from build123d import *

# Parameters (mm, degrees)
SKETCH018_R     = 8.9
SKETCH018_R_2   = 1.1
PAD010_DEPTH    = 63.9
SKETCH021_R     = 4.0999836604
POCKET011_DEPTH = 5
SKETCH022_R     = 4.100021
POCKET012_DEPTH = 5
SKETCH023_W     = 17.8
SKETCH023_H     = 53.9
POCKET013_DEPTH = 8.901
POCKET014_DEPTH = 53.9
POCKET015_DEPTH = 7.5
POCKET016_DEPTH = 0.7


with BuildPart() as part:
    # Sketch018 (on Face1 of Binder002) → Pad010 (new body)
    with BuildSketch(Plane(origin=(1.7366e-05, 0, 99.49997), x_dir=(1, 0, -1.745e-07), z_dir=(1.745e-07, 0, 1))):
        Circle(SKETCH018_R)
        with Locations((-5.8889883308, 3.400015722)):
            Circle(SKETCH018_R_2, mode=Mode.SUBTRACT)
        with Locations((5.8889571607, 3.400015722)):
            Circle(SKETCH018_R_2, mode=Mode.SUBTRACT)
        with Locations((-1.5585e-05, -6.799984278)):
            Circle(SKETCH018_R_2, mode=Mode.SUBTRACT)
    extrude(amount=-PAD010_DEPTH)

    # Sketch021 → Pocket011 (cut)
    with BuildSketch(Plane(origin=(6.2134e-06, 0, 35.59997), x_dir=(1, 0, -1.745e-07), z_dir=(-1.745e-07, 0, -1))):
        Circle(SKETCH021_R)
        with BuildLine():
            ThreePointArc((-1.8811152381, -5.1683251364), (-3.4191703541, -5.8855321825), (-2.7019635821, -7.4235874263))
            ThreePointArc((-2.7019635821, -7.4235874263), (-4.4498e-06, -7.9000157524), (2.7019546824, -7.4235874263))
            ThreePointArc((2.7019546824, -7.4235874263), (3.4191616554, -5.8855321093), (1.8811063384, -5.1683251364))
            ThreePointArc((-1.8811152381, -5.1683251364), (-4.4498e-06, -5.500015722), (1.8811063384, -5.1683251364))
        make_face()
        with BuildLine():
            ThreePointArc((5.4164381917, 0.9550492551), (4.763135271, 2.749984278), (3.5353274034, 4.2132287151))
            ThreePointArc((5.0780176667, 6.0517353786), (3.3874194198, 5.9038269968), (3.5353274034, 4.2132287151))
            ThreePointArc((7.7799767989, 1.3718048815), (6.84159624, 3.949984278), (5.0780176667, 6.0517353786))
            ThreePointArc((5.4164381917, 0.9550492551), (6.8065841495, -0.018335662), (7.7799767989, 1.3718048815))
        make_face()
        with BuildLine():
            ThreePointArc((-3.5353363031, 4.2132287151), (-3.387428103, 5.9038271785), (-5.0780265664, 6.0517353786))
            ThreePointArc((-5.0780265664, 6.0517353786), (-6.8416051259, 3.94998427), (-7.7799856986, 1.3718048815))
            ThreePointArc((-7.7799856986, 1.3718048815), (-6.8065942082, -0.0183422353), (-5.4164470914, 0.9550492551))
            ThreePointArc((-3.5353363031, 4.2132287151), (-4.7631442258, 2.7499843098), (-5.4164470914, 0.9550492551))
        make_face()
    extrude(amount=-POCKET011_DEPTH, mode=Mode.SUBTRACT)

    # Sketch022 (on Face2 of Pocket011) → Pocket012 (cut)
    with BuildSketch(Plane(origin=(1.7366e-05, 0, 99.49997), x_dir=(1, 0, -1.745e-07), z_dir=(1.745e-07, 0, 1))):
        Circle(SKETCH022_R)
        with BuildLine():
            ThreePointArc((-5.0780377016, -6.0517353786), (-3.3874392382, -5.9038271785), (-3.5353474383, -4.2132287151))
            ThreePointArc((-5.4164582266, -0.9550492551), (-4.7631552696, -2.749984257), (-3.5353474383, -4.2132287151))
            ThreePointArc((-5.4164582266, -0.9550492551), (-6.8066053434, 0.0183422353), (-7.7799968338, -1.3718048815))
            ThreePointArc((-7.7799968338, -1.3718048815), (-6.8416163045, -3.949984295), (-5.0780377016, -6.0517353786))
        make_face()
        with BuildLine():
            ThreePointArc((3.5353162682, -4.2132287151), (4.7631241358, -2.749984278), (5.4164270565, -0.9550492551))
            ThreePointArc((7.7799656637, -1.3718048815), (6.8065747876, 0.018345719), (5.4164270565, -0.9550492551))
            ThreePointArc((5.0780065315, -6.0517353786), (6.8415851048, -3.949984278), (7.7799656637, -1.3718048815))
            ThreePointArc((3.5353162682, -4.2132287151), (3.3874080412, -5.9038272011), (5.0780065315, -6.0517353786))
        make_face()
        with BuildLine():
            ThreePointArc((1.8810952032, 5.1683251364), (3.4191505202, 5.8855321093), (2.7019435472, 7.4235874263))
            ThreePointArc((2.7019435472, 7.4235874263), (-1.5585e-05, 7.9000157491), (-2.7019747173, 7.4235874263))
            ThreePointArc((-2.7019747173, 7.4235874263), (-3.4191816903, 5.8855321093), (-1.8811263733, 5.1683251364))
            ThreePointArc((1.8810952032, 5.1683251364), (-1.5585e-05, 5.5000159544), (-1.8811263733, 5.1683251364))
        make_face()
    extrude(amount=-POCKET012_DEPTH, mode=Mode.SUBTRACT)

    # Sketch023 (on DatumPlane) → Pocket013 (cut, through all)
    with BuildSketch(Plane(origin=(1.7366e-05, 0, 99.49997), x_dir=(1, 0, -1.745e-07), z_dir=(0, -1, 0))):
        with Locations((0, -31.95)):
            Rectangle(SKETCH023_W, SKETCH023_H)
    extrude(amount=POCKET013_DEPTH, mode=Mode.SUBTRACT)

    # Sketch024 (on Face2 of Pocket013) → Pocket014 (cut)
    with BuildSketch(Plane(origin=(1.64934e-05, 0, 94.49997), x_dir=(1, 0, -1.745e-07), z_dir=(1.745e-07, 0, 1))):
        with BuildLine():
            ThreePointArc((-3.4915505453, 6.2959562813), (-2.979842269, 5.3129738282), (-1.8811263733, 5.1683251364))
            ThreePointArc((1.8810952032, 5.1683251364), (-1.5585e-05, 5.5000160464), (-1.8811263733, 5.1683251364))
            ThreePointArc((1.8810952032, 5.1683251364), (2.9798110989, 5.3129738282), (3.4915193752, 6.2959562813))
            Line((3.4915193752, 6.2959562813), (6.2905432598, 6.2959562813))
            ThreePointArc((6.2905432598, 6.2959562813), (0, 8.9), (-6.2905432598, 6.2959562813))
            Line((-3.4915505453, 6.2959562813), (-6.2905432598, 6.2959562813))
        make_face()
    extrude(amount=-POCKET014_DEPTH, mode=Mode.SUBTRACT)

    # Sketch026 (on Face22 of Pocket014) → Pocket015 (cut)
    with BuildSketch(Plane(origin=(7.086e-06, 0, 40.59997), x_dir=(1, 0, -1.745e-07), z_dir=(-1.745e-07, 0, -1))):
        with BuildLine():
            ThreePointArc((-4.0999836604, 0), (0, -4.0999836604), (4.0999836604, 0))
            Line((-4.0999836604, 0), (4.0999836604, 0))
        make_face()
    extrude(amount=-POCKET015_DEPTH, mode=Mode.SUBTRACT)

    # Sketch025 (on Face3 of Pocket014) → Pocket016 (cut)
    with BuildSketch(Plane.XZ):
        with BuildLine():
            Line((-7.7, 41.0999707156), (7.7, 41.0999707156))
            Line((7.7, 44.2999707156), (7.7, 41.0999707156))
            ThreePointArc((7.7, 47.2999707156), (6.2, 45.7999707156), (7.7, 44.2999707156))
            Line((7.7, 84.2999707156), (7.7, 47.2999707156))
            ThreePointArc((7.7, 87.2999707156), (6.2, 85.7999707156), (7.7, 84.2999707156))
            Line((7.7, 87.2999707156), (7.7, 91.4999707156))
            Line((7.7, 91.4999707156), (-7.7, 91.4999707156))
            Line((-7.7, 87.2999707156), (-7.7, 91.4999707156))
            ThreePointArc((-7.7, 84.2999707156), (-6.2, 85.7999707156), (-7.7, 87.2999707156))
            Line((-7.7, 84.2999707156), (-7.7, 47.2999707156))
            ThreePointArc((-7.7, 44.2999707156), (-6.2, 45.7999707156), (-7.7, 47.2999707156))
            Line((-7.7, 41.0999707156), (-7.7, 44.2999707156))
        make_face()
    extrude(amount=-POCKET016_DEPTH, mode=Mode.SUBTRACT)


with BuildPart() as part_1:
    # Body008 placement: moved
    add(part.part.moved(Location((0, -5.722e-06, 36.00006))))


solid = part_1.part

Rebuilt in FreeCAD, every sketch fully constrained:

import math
import FreeCAD as App
import Part
import Sketcher

V = App.Vector
Q = App.Units.Quantity

doc = App.newDocument("Part")
body = doc.addObject("PartDesign::Body", "Body")

sketch1 = body.newObject("Sketcher::SketchObject", "Sketch")
sketch1.AttachmentSupport = (doc.getObject("XY_Plane"), [""])
sketch1.MapMode = "FlatFace"
sketch1.AttachmentOffset = App.Placement(V(0, 0, 99.49997), App.Rotation())
sketch1.addGeometry([
    Part.Circle(V(0.000017, 0, 0), V(0, 0, 1), 8.9),
    Part.Circle(V(0.000002, -6.799984, 0), V(0, 0, 1), 1.1),
    Part.Circle(V(-5.888971, 3.400016, 0), V(0, 0, 1), 1.1),
    Part.Circle(V(5.888975, 3.400016, 0), V(0, 0, 1), 1.1),
], False)
sketch1.addConstraint([
    Sketcher.Constraint("Equal", 1, 2),
    Sketcher.Constraint("Equal", 2, 3),
    Sketcher.Constraint("Symmetric", 2, 3, 3, 3, -2),
    Sketcher.Constraint("PointOnObject", 0, 3, -1),
    Sketcher.Constraint("PointOnObject", 1, 3, -2),
    Sketcher.Constraint("Diameter", 0, Q("17.8 mm")),
    Sketcher.Constraint("Diameter", 1, Q("2.2 mm")),
    Sketcher.Constraint("DistanceY", 1, 3, 2, 3, Q("10.2 mm")),
    Sketcher.Constraint("DistanceX", 2, 3, -1, 1, Q("5.888971 mm")),
    Sketcher.Constraint("DistanceX", 2, 3, 0, 3, Q("5.888988 mm")),
    Sketcher.Constraint("DistanceY", 1, 3, -1, 1, Q("6.799984 mm")),
])
pad1 = body.newObject("PartDesign::Pad", "Pad")
pad1.Profile = sketch1
pad1.Length = 63.9
pad1.Reversed = True

sketch2 = body.newObject("Sketcher::SketchObject", "Sketch001")
sketch2.AttachmentSupport = (doc.getObject("XY_Plane"), [""])
sketch2.MapMode = "FlatFace"
sketch2.AttachmentOffset = App.Placement(V(0, 0, 35.59997), App.Rotation())
sketch2.addGeometry([
    Part.Circle(V(0.000006, 0, 0), V(0, 0, 1), 4.099984),
    Part.ArcOfCircle(Part.Circle(V(-2.291533, 6.295956, 0), V(0, 0, 1), 1.2), math.radians(110.00001), math.radians(289.99999)),
    Part.ArcOfCircle(Part.Circle(V(0.000002, 0.000016, 0), V(0, 0, 1), 7.9), math.radians(69.999999), math.radians(110.000001)),
    Part.ArcOfCircle(Part.Circle(V(2.291537, 6.295956, 0), V(0, 0, 1), 1.2), math.radians(-110), math.radians(70)),
    Part.ArcOfCircle(Part.Circle(V(0.000002, 0.000016, 0), V(0, 0, 1), 5.5), math.radians(70), math.radians(110)),
    Part.ArcOfCircle(Part.Circle(V(0.000002, 0.000016, 0), V(0, 0, 1), 5.5), math.radians(-50), math.radians(-10)),
    Part.ArcOfCircle(Part.Circle(V(6.598213, -1.163434, 0), V(0, 0, 1), 1.2), math.radians(-9.999681), math.radians(169.999681)),
    Part.ArcOfCircle(Part.Circle(V(0.000002, 0.000016, 0), V(0, 0, 1), 7.9), math.radians(-50), math.radians(-10)),
    Part.ArcOfCircle(Part.Circle(V(4.306679, -5.132482, 0), V(0, 0, 1), 1.2), math.radians(130.000014), math.radians(309.999986)),
    Part.ArcOfCircle(Part.Circle(V(-4.306675, -5.132482, 0), V(0, 0, 1), 1.2), math.radians(-130), math.radians(50)),
    Part.ArcOfCircle(Part.Circle(V(0.000002, 0.000016, 0), V(0, 0, 1), 7.9), math.radians(-169.999999), math.radians(-130.000001)),
    Part.ArcOfCircle(Part.Circle(V(-6.59821, -1.163427, 0), V(0, 0, 1), 1.2), math.radians(10), math.radians(190)),
    Part.ArcOfCircle(Part.Circle(V(0.000001, 0.000015, 0), V(0, 0, 1), 5.499999), math.radians(-170.000004), math.radians(-129.999996)),
], False)
sketch2.addConstraint([
    Sketcher.Constraint("Tangent", 1, 1, 2, 2),
    Sketcher.Constraint("Tangent", 2, 1, 3, 2),
    Sketcher.Constraint("Tangent", 3, 1, 4, 1),
    Sketcher.Constraint("Tangent", 4, 2, 1, 2),
    Sketcher.Constraint("Coincident", 5, 2, 6, 2),
    Sketcher.Constraint("Coincident", 6, 1, 7, 2),
    Sketcher.Constraint("Tangent", 7, 1, 8, 2),
    Sketcher.Constraint("Tangent", 8, 1, 5, 1),
    Sketcher.Constraint("Tangent", 9, 1, 10, 2),
    Sketcher.Constraint("Tangent", 10, 1, 11, 2),
    Sketcher.Constraint("Tangent", 11, 1, 12, 1),
    Sketcher.Constraint("Tangent", 12, 2, 9, 2),
    Sketcher.Constraint("Coincident", 0, 3, -1, 1),
    Sketcher.Constraint("Coincident", 4, 3, 2, 3),
    Sketcher.Constraint("Coincident", 5, 3, 2, 3),
    Sketcher.Constraint("Coincident", 7, 3, 2, 3),
    Sketcher.Constraint("Coincident", 10, 3, 2, 3),
    Sketcher.Constraint("Coincident", 12, 3, 2, 3),
    Sketcher.Constraint("Equal", 4, 5),
    Sketcher.Constraint("Equal", 3, 6),
    Sketcher.Constraint("Equal", 8, 9),
    Sketcher.Constraint("Equal", 7, 10),
    Sketcher.Constraint("Symmetric", 1, 3, 3, 3, -2),
    Sketcher.Constraint("Horizontal", 8, 3, 9, 3),
    Sketcher.Constraint("Horizontal", 6, 1, 10, 1),
    Sketcher.Constraint("Horizontal", 5, 2, 11, 1),
    Sketcher.Constraint("Radius", 1, Q("1.2 mm")),
    Sketcher.Constraint("Radius", 2, Q("7.9 mm")),
    Sketcher.Constraint("Diameter", 0, Q("8.199967 mm")),
    Sketcher.Constraint("DistanceY", 9, 3, 2, 3, Q("5.132498 mm")),
    Sketcher.Constraint("DistanceY", 7, 1, 6, 3, Q("4.888302 mm")),
    Sketcher.Constraint("DistanceY", 12, 2, 11, 3, Q("3.049802 mm")),
    Sketcher.Constraint("DistanceY", 8, 3, -1, 1, Q("5.132482 mm")),
    Sketcher.Constraint("DistanceX", -1, 1, 2, 1, Q("2.701961 mm")),
])
pocket1 = body.newObject("PartDesign::Pocket", "Pocket")
pocket1.Profile = sketch2
pocket1.Length = 5
pocket1.Reversed = True

sketch3 = body.newObject("Sketcher::SketchObject", "Sketch002")
sketch3.AttachmentSupport = (doc.getObject("XY_Plane"), [""])
sketch3.MapMode = "FlatFace"
sketch3.AttachmentOffset = App.Placement(V(0, 0, 99.49997), App.Rotation())
sketch3.addGeometry([
    Part.Circle(V(0.000017, 0, 0), V(0, 0, 1), 4.100021),
    Part.ArcOfCircle(Part.Circle(V(-4.306675, -5.132482, 0), V(0, 0, 1), 1.2), math.radians(-130), math.radians(50)),
    Part.ArcOfCircle(Part.Circle(V(0.000002, 0.000016, 0), V(0, 0, 1), 5.500001), math.radians(-169.999998), math.radians(-130.000002)),
    Part.ArcOfCircle(Part.Circle(V(-6.59821, -1.163427, 0), V(0, 0, 1), 1.2), math.radians(10), math.radians(190)),
    Part.ArcOfCircle(Part.Circle(V(0.000001, 0.000015, 0), V(0, 0, 1), 7.899999), math.radians(-170.000001), math.radians(-129.999999)),
    Part.ArcOfCircle(Part.Circle(V(0.000002, 0.000016, 0), V(0, 0, 1), 5.5), math.radians(-50), math.radians(-10)),
    Part.ArcOfCircle(Part.Circle(V(4.306679, -5.132482, 0), V(0, 0, 1), 1.2), math.radians(129.999998), math.radians(310.000002)),
    Part.ArcOfCircle(Part.Circle(V(0.000002, 0.000016, 0), V(0, 0, 1), 7.9), math.radians(-50), math.radians(-10)),
    Part.ArcOfCircle(Part.Circle(V(6.598214, -1.163424, 0), V(0, 0, 1), 1.2), math.radians(-10.000169), math.radians(170.000169)),
    Part.ArcOfCircle(Part.Circle(V(2.291537, 6.295956, 0), V(0, 0, 1), 1.2), math.radians(-110), math.radians(70)),
    Part.ArcOfCircle(Part.Circle(V(0.000002, 0.000016, 0), V(0, 0, 1), 7.9), math.radians(69.999999), math.radians(110.000001)),
    Part.ArcOfCircle(Part.Circle(V(-2.291533, 6.295956, 0), V(0, 0, 1), 1.2), math.radians(110), math.radians(290)),
    Part.ArcOfCircle(Part.Circle(V(0.000002, 0.00002, 0), V(0, 0, 1), 5.499996), math.radians(69.999986), math.radians(110.000014)),
], False)
sketch3.addConstraint([
    Sketcher.Constraint("Tangent", 1, 2, 2, 2),
    Sketcher.Constraint("Tangent", 2, 1, 3, 1),
    Sketcher.Constraint("Tangent", 3, 2, 4, 1),
    Sketcher.Constraint("Tangent", 4, 2, 1, 1),
    Sketcher.Constraint("Tangent", 5, 1, 6, 1),
    Sketcher.Constraint("Tangent", 6, 2, 7, 1),
    Sketcher.Constraint("Coincident", 7, 2, 8, 1),
    Sketcher.Constraint("Coincident", 8, 2, 5, 2),
    Sketcher.Constraint("Tangent", 9, 2, 10, 1),
    Sketcher.Constraint("Tangent", 10, 2, 11, 1),
    Sketcher.Constraint("Tangent", 11, 2, 12, 2),
    Sketcher.Constraint("Tangent", 12, 1, 9, 1),
    Sketcher.Constraint("Coincident", 4, 3, 2, 3),
    Sketcher.Constraint("Coincident", 5, 3, 2, 3),
    Sketcher.Constraint("Coincident", 7, 3, 2, 3),
    Sketcher.Constraint("Coincident", 10, 3, 2, 3),
    Sketcher.Constraint("Coincident", 12, 3, 2, 3),
    Sketcher.Constraint("Equal", 2, 5),
    Sketcher.Constraint("Equal", 3, 6),
    Sketcher.Constraint("Equal", 8, 9),
    Sketcher.Constraint("Equal", 7, 10),
    Sketcher.Constraint("Symmetric", 1, 3, 6, 3, -2),
    Sketcher.Constraint("PointOnObject", 0, 3, -1),
    Sketcher.Constraint("Horizontal", 9, 3, 11, 3),
    Sketcher.Constraint("Horizontal", 3, 2, 7, 2),
    Sketcher.Constraint("Horizontal", 2, 1, 8, 2),
    Sketcher.Constraint("Radius", 1, Q("1.2 mm")),
    Sketcher.Constraint("Radius", 2, Q("5.500001 mm")),
    Sketcher.Constraint("Diameter", 0, Q("8.200042 mm")),
    Sketcher.Constraint("DistanceY", 1, 3, 2, 3, Q("5.132498 mm")),
    Sketcher.Constraint("DistanceY", 1, 2, 3, 3, Q("3.049802 mm")),
    Sketcher.Constraint("DistanceY", 1, 2, -1, 1, Q("4.213229 mm")),
    Sketcher.Constraint("DistanceX", -1, 1, 9, 2, Q("2.701961 mm")),
    Sketcher.Constraint("DistanceX", 0, 3, 6, 3, Q("4.306661 mm")),
    Sketcher.Constraint("DistanceY", 6, 3, 8, 3, Q("3.969058 mm")),
])
pocket2 = body.newObject("PartDesign::Pocket", "Pocket001")
pocket2.Profile = sketch3
pocket2.Length = 5

sketch4 = body.newObject("Sketcher::SketchObject", "Sketch003")
sketch4.AttachmentSupport = (doc.getObject("XZ_Plane"), [""])
sketch4.MapMode = "FlatFace"
sketch4.addGeometry([
    Part.LineSegment(V(-8.899984, 94.499972, 0), V(-8.899993, 40.599972, 0)),
    Part.LineSegment(V(-8.899993, 40.599972, 0), V(8.900007, 40.599968, 0)),
    Part.LineSegment(V(8.900007, 40.599968, 0), V(8.900016, 94.499968, 0)),
    Part.LineSegment(V(8.900016, 94.499968, 0), V(-8.899984, 94.499972, 0)),
], False)
sketch4.addConstraint([
    Sketcher.Constraint("Coincident", 0, 2, 1, 1),
    Sketcher.Constraint("Coincident", 1, 2, 2, 1),
    Sketcher.Constraint("Coincident", 2, 2, 3, 1),
    Sketcher.Constraint("Coincident", 3, 2, 0, 1),
    Sketcher.Constraint("Perpendicular", 0, 1),
    Sketcher.Constraint("Perpendicular", 1, 2),
    Sketcher.Constraint("Perpendicular", 2, 3),
    Sketcher.Constraint("Angle", 0, Q("-90.00001 deg")),
    Sketcher.Constraint("Distance", 0, Q("53.9 mm")),
    Sketcher.Constraint("Distance", 1, Q("17.8 mm")),
    Sketcher.Constraint("DistanceY", -1, 1, 0, 2, Q("40.599972 mm")),
    Sketcher.Constraint("DistanceX", 0, 2, -1, 1, Q("8.899993 mm")),
])
pocket3 = body.newObject("PartDesign::Pocket", "Pocket002")
pocket3.Profile = sketch4
pocket3.Type = "ThroughAll"
pocket3.Reversed = True

sketch5 = body.newObject("Sketcher::SketchObject", "Sketch004")
sketch5.AttachmentSupport = (doc.getObject("XY_Plane"), [""])
sketch5.MapMode = "FlatFace"
sketch5.AttachmentOffset = App.Placement(V(0, 0, 94.49997), App.Rotation())
sketch5.addGeometry([
    Part.ArcOfCircle(Part.Circle(V(-2.291534, 6.295956, 0), V(0, 0, 1), 1.2), math.radians(180), math.radians(290)),
    Part.ArcOfCircle(Part.Circle(V(0.000001, 0.000021, 0), V(0, 0, 1), 5.499995), math.radians(69.999981), math.radians(110.000019)),
    Part.ArcOfCircle(Part.Circle(V(2.291536, 6.295956, 0), V(0, 0, 1), 1.2), math.radians(-110), math.radians(0)),
    Part.LineSegment(V(3.491536, 6.295956, 0), V(6.29056, 6.295956, 0)),
    Part.ArcOfCircle(Part.Circle(V(0.000016, 0, 0), V(0, 0, 1), 8.9), math.radians(45.024641), math.radians(134.975359)),
    Part.LineSegment(V(-6.290527, 6.295956, 0), V(-3.491534, 6.295956, 0)),
], False)
sketch5.addConstraint([
    Sketcher.Constraint("Tangent", 0, 2, 1, 2),
    Sketcher.Constraint("Tangent", 1, 1, 2, 1),
    Sketcher.Constraint("Coincident", 2, 2, 3, 1),
    Sketcher.Constraint("Coincident", 3, 2, 4, 1),
    Sketcher.Constraint("Coincident", 4, 2, 5, 1),
    Sketcher.Constraint("Coincident", 5, 2, 0, 1),
    Sketcher.Constraint("Horizontal", 3),
    Sketcher.Constraint("Horizontal", 5),
    Sketcher.Constraint("Equal", 0, 2),
    Sketcher.Constraint("Symmetric", 0, 3, 2, 3, -2),
    Sketcher.Constraint("PointOnObject", 4, 3, -1),
    Sketcher.Constraint("Horizontal", 0, 3, 2, 2),
    Sketcher.Constraint("Horizontal", 3, 2, 4, 2),
    Sketcher.Constraint("Radius", 0, Q("1.2 mm")),
    Sketcher.Constraint("Radius", 4, Q("8.9 mm")),
    Sketcher.Constraint("Radius", 1, Q("5.499995 mm")),
    Sketcher.Constraint("DistanceX", 3, 1, 3, 2, Q("2.799024 mm")),
    Sketcher.Constraint("DistanceX", 5, 1, 5, 2, Q("2.798993 mm")),
    Sketcher.Constraint("DistanceX", 0, 2, -1, 1, Q("1.88111 mm")),
])
pocket4 = body.newObject("PartDesign::Pocket", "Pocket003")
pocket4.Profile = sketch5
pocket4.Length = 53.9

sketch6 = body.newObject("Sketcher::SketchObject", "Sketch005")
sketch6.AttachmentSupport = (doc.getObject("XY_Plane"), [""])
sketch6.MapMode = "FlatFace"
sketch6.AttachmentOffset = App.Placement(V(0, 0, 40.59997), App.Rotation())
sketch6.addGeometry([
    Part.ArcOfCircle(Part.Circle(V(0.000007, 0, 0), V(0, 0, 1), 4.099984), math.radians(0), math.radians(180)),
    Part.LineSegment(V(4.099991, 0, 0), V(-4.099977, 0, 0)),
], False)
sketch6.addConstraint([
    Sketcher.Constraint("Coincident", 0, 1, 1, 1),
    Sketcher.Constraint("Coincident", 1, 2, 0, 2),
    Sketcher.Constraint("Horizontal", 1),
    Sketcher.Constraint("Coincident", 0, 3, -1, 1),
    Sketcher.Constraint("PointOnObject", 0, 1, -1),
    Sketcher.Constraint("Radius", 0, Q("4.099984 mm")),
])
pocket5 = body.newObject("PartDesign::Pocket", "Pocket004")
pocket5.Profile = sketch6
pocket5.Length = 7.5
pocket5.Reversed = True

sketch7 = body.newObject("Sketcher::SketchObject", "Sketch006")
sketch7.AttachmentSupport = (doc.getObject("XZ_Plane"), [""])
sketch7.MapMode = "FlatFace"
sketch7.addGeometry([
    Part.LineSegment(V(-7.7, 41.099971, 0), V(7.7, 41.099971, 0)),
    Part.LineSegment(V(7.7, 41.099971, 0), V(7.7, 44.299971, 0)),
    Part.ArcOfCircle(Part.Circle(V(7.7, 45.799971, 0), V(0, 0, 1), 1.5), math.radians(90), math.radians(270)),
    Part.LineSegment(V(7.7, 47.299971, 0), V(7.7, 84.299971, 0)),
    Part.ArcOfCircle(Part.Circle(V(7.7, 85.799971, 0), V(0, 0, 1), 1.5), math.radians(90), math.radians(270)),
    Part.LineSegment(V(7.7, 87.299971, 0), V(7.7, 91.499971, 0)),
    Part.LineSegment(V(7.7, 91.499971, 0), V(-7.7, 91.499971, 0)),
    Part.LineSegment(V(-7.7, 91.499971, 0), V(-7.7, 87.299971, 0)),
    Part.ArcOfCircle(Part.Circle(V(-7.7, 85.799971, 0), V(0, 0, 1), 1.5), math.radians(-90), math.radians(90)),
    Part.LineSegment(V(-7.7, 84.299971, 0), V(-7.7, 47.299971, 0)),
    Part.ArcOfCircle(Part.Circle(V(-7.7, 45.799971, 0), V(0, 0, 1), 1.5), math.radians(-90), math.radians(90)),
    Part.LineSegment(V(-7.7, 44.299971, 0), V(-7.7, 41.099971, 0)),
], False)
sketch7.addConstraint([
    Sketcher.Constraint("Coincident", 0, 2, 1, 1),
    Sketcher.Constraint("Coincident", 1, 2, 2, 2),
    Sketcher.Constraint("Coincident", 2, 1, 3, 1),
    Sketcher.Constraint("Coincident", 3, 2, 4, 2),
    Sketcher.Constraint("Coincident", 4, 1, 5, 1),
    Sketcher.Constraint("Coincident", 5, 2, 6, 1),
    Sketcher.Constraint("Coincident", 6, 2, 7, 1),
    Sketcher.Constraint("Coincident", 7, 2, 8, 2),
    Sketcher.Constraint("Coincident", 8, 1, 9, 1),
    Sketcher.Constraint("Coincident", 9, 2, 10, 2),
    Sketcher.Constraint("Coincident", 10, 1, 11, 1),
    Sketcher.Constraint("Coincident", 11, 2, 0, 1),
    Sketcher.Constraint("Horizontal", 0),
    Sketcher.Constraint("Vertical", 1),
    Sketcher.Constraint("Vertical", 3),
    Sketcher.Constraint("Vertical", 5),
    Sketcher.Constraint("Horizontal", 6),
    Sketcher.Constraint("Vertical", 7),
    Sketcher.Constraint("Vertical", 9),
    Sketcher.Constraint("Vertical", 11),
    Sketcher.Constraint("Equal", 2, 4),
    Sketcher.Constraint("Equal", 4, 8),
    Sketcher.Constraint("Equal", 8, 10),
    Sketcher.Constraint("Symmetric", 4, 3, 8, 3, -2),
    Sketcher.Constraint("Symmetric", 2, 3, 10, 3, -2),
    Sketcher.Constraint("Vertical", 2, 3, 4, 3),
    Sketcher.Constraint("Vertical", 4, 3, 0, 2),
    Sketcher.Constraint("Vertical", 1, 2, 2, 1),
    Sketcher.Constraint("Vertical", 3, 2, 4, 1),
    Sketcher.Constraint("Vertical", 10, 3, 6, 2),
    Sketcher.Constraint("Vertical", 7, 2, 8, 1),
    Sketcher.Constraint("Vertical", 9, 2, 10, 1),
    Sketcher.Constraint("Radius", 2, Q("1.5 mm")),
    Sketcher.Constraint("DistanceY", 3, 1, 3, 2, Q("37 mm")),
    Sketcher.Constraint("DistanceX", 0, 1, 0, 2, Q("15.4 mm")),
    Sketcher.Constraint("DistanceY", 1, 1, 1, 2, Q("3.2 mm")),
    Sketcher.Constraint("DistanceY", 5, 1, 5, 2, Q("4.2 mm")),
    Sketcher.Constraint("DistanceY", -1, 1, 2, 3, Q("45.799971 mm")),
])
pocket6 = body.newObject("PartDesign::Pocket", "Pocket005")
pocket6.Profile = sketch7
pocket6.Length = 0.7
body2 = doc.addObject("PartDesign::Body", "Body001")
doc.recompute()

body.Placement = App.Placement(V(0, -0.000006, 36.00006), App.Rotation(V(0, 0, 1), 0))
boolean = body2.newObject("PartDesign::Boolean", "Boolean")
boolean.Type = "Fuse"
boolean.addObjects([body])

doc.recompute()
